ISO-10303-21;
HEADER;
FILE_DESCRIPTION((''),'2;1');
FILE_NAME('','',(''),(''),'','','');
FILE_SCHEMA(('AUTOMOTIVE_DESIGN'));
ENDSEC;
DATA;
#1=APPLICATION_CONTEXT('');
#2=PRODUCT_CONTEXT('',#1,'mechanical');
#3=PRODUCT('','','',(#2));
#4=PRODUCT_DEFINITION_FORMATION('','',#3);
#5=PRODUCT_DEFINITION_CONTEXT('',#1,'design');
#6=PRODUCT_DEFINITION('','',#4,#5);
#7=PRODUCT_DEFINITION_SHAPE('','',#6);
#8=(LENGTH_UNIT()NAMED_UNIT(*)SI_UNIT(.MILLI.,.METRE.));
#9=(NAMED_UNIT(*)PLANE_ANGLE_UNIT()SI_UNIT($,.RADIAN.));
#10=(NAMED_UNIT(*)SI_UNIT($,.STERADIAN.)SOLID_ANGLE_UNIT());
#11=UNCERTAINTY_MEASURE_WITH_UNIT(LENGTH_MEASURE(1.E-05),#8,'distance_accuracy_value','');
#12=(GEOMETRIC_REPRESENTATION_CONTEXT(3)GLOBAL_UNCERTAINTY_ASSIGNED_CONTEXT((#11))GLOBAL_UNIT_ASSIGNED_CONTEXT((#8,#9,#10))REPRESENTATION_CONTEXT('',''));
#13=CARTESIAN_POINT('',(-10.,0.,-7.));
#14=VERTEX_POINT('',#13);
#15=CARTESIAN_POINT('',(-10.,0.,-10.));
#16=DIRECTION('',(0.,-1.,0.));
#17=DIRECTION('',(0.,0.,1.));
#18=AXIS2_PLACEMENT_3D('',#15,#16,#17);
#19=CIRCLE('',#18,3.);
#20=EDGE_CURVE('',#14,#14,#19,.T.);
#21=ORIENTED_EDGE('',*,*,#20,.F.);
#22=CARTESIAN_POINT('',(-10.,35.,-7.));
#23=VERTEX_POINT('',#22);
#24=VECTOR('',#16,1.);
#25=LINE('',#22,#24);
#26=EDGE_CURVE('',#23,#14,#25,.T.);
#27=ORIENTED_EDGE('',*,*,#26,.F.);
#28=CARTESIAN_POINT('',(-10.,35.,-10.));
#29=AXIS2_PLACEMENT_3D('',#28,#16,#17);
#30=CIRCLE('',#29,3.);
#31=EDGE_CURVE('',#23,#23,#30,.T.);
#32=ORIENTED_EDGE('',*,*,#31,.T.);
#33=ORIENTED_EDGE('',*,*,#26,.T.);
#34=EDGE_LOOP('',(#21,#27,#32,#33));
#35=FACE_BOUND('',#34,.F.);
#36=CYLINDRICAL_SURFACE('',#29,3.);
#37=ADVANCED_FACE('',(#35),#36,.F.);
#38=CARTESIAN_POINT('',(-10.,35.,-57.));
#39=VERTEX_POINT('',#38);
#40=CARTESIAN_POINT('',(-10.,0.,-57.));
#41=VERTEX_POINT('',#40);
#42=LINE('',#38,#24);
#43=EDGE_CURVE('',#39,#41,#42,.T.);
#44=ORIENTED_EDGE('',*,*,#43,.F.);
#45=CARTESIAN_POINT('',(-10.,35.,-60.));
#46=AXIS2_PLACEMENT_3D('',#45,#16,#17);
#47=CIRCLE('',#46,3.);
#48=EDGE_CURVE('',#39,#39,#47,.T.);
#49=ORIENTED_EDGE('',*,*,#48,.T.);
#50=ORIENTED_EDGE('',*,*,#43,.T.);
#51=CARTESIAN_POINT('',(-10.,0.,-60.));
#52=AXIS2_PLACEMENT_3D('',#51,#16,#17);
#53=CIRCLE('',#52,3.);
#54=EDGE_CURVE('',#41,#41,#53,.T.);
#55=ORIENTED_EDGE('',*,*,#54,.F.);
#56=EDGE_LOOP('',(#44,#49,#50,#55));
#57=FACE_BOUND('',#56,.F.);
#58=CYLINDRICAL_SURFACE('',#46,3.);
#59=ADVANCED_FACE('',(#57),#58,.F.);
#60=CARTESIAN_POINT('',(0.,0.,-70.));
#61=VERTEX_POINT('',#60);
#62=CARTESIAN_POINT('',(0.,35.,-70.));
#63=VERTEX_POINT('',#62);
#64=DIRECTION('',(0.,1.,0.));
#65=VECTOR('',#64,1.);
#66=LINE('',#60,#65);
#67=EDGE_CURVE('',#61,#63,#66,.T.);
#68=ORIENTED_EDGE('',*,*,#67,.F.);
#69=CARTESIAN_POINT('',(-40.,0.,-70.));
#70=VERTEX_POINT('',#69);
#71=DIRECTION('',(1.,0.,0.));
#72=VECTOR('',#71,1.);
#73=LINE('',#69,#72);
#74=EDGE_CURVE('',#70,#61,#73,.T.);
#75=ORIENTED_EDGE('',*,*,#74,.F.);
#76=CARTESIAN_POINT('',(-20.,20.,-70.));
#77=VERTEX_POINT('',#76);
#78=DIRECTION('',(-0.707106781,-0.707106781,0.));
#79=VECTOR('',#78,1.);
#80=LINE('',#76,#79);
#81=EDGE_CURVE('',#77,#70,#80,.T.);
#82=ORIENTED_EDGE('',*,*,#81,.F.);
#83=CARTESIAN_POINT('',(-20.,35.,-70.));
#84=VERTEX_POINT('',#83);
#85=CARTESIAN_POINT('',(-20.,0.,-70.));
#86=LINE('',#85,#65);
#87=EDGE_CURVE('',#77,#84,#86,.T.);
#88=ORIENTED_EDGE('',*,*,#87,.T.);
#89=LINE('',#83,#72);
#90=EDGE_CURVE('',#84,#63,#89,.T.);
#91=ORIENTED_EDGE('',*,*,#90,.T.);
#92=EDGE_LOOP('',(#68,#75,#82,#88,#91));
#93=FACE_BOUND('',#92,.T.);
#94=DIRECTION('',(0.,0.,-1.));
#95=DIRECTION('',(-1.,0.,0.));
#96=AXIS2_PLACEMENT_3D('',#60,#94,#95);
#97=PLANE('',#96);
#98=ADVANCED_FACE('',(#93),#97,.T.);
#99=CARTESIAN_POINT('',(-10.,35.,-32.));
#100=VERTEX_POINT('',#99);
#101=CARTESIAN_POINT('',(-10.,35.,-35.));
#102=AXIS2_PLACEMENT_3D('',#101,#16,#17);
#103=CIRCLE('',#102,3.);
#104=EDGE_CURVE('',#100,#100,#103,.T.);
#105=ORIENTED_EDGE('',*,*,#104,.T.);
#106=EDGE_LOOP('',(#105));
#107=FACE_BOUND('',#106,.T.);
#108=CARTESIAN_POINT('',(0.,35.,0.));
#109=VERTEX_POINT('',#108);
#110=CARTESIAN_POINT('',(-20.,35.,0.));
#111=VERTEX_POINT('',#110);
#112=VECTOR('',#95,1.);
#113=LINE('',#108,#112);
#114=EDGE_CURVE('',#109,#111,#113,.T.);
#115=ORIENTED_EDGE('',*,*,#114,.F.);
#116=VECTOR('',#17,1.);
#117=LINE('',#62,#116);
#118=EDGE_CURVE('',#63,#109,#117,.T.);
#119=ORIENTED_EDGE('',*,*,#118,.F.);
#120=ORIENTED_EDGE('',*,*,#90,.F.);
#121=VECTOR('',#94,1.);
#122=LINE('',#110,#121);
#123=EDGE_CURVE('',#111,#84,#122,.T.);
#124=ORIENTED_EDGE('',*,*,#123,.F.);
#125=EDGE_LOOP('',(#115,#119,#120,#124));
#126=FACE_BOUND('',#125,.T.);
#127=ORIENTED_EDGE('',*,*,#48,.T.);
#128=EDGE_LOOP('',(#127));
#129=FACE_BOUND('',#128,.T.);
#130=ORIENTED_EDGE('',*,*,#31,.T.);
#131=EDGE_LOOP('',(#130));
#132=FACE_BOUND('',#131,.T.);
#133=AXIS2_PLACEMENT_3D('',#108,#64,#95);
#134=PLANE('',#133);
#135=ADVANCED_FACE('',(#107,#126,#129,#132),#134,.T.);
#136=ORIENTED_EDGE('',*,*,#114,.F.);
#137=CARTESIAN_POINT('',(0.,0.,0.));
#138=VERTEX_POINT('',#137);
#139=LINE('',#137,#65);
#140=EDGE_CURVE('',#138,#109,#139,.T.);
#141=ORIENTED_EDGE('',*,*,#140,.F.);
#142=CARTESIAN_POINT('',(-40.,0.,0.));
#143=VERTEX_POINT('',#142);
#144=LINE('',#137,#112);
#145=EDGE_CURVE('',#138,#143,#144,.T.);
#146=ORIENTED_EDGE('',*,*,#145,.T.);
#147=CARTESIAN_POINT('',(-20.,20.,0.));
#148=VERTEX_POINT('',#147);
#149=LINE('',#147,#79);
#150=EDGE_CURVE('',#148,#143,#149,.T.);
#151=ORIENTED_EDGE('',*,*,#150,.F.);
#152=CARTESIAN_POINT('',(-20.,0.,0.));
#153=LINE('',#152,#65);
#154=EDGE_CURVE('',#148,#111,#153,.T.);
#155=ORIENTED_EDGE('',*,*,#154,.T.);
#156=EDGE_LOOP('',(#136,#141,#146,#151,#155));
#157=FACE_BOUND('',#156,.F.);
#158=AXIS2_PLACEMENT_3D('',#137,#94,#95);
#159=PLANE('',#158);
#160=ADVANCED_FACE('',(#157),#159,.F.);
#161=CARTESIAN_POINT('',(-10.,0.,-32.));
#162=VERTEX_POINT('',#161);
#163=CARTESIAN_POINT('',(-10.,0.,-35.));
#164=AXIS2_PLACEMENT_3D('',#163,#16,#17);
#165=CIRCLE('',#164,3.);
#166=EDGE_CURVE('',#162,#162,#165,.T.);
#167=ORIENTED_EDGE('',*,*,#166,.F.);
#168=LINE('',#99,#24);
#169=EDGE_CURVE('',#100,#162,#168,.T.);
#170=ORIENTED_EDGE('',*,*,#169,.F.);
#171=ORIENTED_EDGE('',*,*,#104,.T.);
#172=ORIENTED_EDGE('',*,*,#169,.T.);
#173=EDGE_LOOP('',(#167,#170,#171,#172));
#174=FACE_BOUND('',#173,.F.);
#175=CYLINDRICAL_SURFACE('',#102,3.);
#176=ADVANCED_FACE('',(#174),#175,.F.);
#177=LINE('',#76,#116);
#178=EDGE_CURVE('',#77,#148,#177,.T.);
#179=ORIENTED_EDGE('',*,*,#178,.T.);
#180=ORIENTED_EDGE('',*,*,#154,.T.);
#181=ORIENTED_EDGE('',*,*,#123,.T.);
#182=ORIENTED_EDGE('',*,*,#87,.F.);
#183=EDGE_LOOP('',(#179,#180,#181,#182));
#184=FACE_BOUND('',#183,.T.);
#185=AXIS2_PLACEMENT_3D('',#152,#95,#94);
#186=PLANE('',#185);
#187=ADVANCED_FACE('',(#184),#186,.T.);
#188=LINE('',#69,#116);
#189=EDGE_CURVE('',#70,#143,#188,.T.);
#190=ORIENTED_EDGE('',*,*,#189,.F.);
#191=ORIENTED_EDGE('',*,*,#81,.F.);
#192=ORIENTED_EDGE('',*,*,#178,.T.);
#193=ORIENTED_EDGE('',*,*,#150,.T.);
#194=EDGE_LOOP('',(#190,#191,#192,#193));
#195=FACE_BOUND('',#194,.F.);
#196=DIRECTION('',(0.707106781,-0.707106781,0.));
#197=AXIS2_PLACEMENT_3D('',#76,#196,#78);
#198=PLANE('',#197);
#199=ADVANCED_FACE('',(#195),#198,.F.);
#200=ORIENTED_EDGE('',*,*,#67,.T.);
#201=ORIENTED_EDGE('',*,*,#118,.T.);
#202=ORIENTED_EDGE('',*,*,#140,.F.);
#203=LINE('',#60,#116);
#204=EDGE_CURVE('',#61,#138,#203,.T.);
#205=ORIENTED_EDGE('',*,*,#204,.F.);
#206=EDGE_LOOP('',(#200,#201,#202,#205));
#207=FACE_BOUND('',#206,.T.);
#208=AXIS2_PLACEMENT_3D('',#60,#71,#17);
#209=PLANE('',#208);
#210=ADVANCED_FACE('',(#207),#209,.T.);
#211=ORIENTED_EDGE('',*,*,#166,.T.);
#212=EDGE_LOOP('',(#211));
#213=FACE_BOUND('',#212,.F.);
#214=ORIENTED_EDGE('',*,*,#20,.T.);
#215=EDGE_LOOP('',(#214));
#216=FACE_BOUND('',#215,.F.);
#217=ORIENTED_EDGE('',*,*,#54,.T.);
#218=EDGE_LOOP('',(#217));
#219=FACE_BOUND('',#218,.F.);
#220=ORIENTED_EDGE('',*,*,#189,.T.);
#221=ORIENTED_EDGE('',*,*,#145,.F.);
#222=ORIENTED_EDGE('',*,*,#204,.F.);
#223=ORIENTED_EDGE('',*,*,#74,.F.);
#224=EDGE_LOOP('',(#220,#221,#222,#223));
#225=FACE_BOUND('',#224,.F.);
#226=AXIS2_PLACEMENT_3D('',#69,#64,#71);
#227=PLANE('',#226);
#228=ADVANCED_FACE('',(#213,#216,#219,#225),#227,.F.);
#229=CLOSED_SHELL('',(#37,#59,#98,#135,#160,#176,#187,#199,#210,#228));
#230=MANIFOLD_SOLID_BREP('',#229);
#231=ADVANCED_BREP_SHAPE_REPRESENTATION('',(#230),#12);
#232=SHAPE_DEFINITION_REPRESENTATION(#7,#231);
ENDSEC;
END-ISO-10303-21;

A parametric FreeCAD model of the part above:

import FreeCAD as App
import Part
import Sketcher
Q = App.Units.Quantity

doc = App.newDocument("Part")
body = doc.addObject("PartDesign::Body", "Body")

# Sketch on XZ plane
sketch1 = doc.addObject("Sketcher::SketchObject", "Sketch")
body.addObject(sketch1)
sketch1.AttachmentSupport = (doc.XZ_Plane, [""])
sketch1.MapMode = "FlatFace"
sketch1.addGeometry(Part.LineSegment(App.Vector(-20, 0, 0), App.Vector(0, 0, 0)), False)
sketch1.addGeometry(Part.LineSegment(App.Vector(0, 0, 0), App.Vector(0, -70, 0)), False)
sketch1.addGeometry(Part.LineSegment(App.Vector(0, -70, 0), App.Vector(-20, -70, 0)), False)
sketch1.addGeometry(Part.LineSegment(App.Vector(-20, -70, 0), App.Vector(-20, 0, 0)), False)
sketch1.addConstraint(Sketcher.Constraint("Coincident", 0, 2, 1, 1))
sketch1.addConstraint(Sketcher.Constraint("Coincident", 1, 2, 2, 1))
sketch1.addConstraint(Sketcher.Constraint("Coincident", 2, 2, 3, 1))
sketch1.addConstraint(Sketcher.Constraint("Coincident", 3, 2, 0, 1))
sketch1.addConstraint(Sketcher.Constraint("Horizontal", 0))
sketch1.addConstraint(Sketcher.Constraint("Vertical", 1))
sketch1.addConstraint(Sketcher.Constraint("Horizontal", 2))
sketch1.addConstraint(Sketcher.Constraint("Vertical", 3))
sketch1.addConstraint(Sketcher.Constraint("Coincident", 0, 2, -1, 1))
sketch1.addConstraint(Sketcher.Constraint("DistanceX", 0, 1, 0, 2, Q("20 mm")))
sketch1.addConstraint(Sketcher.Constraint("DistanceY", 1, 2, 1, 1, Q("70 mm")))
pad1 = doc.addObject("PartDesign::Pad", "Pad")
body.addObject(pad1)
pad1.Profile = sketch1
pad1.Length = 35
pad1.Reversed = True

# Sketch on XZ plane
sketch2 = doc.addObject("Sketcher::SketchObject", "Sketch001")
body.addObject(sketch2)
sketch2.AttachmentSupport = (doc.XZ_Plane, [""])
sketch2.MapMode = "FlatFace"
sketch2.AttachmentOffset = App.Placement(App.Vector(0, 0, -35), App.Rotation())
sketch2.addGeometry(Part.Circle(App.Vector(-10, -60, 0), App.Vector(0, 0, 1), 3), False)
sketch2.addGeometry(Part.Circle(App.Vector(-10, -35, 0), App.Vector(0, 0, 1), 3), False)
sketch2.addGeometry(Part.Circle(App.Vector(-10, -10, 0), App.Vector(0, 0, 1), 3), False)
sketch2.addConstraint(Sketcher.Constraint("Equal", 0, 1))
sketch2.addConstraint(Sketcher.Constraint("Equal", 1, 2))
sketch2.addConstraint(Sketcher.Constraint("Vertical", 0, 3, 1, 3))
sketch2.addConstraint(Sketcher.Constraint("Vertical", 1, 3, 2, 3))
sketch2.addConstraint(Sketcher.Constraint("Diameter", 0, Q("6 mm")))
sketch2.addConstraint(Sketcher.Constraint("DistanceX", 0, 3, -1, 1, Q("10 mm")))
sketch2.addConstraint(Sketcher.Constraint("DistanceY", 0, 3, -1, 1, Q("60 mm")))
sketch2.addConstraint(Sketcher.Constraint("DistanceY", 1, 3, -1, 1, Q("35 mm")))
sketch2.addConstraint(Sketcher.Constraint("DistanceY", 2, 3, -1, 1, Q("10 mm")))
doc.recompute()
hole = doc.addObject("PartDesign::Hole", "Hole")
body.addObject(hole)
hole.Profile = sketch2
hole.ThreadType = "None"
hole.Diameter = 6
hole.DepthType = "ThroughAll"
hole.Reversed = True

# Sketch on XY plane
sketch3 = doc.addObject("Sketcher::SketchObject", "Sketch002")
body.addObject(sketch3)
sketch3.AttachmentSupport = (doc.XY_Plane, [""])
sketch3.MapMode = "FlatFace"
sketch3.AttachmentOffset = App.Placement(App.Vector(0, 0, -70), App.Rotation())
sketch3.addGeometry(Part.LineSegment(App.Vector(-20, 20, 0), App.Vector(-20, 0, 0)), False)
sketch3.addGeometry(Part.LineSegment(App.Vector(-20, 0, 0), App.Vector(-40, 0, 0)), False)
sketch3.addGeometry(Part.LineSegment(App.Vector(-40, 0, 0), App.Vector(-20, 20, 0)), False)
sketch3.addConstraint(Sketcher.Constraint("Coincident", 0, 2, 1, 1))
sketch3.addConstraint(Sketcher.Constraint("Coincident", 1, 2, 2, 1))
sketch3.addConstraint(Sketcher.Constraint("Coincident", 2, 2, 0, 1))
sketch3.addConstraint(Sketcher.Constraint("Vertical", 0))
sketch3.addConstraint(Sketcher.Constraint("Horizontal", 1))
sketch3.addConstraint(Sketcher.Constraint("PointOnObject", 0, 2, -1))
sketch3.addConstraint(Sketcher.Constraint("Equal", 1, 0))
sketch3.addConstraint(Sketcher.Constraint("DistanceX", 1, 2, 1, 1, Q("20 mm")))
sketch3.addConstraint(Sketcher.Constraint("DistanceX", 0, 2, -1, 1, Q("20 mm")))
pad2 = doc.addObject("PartDesign::Pad", "Pad001")
body.addObject(pad2)
pad2.Profile = sketch3
pad2.Length = 70

doc.recompute()
